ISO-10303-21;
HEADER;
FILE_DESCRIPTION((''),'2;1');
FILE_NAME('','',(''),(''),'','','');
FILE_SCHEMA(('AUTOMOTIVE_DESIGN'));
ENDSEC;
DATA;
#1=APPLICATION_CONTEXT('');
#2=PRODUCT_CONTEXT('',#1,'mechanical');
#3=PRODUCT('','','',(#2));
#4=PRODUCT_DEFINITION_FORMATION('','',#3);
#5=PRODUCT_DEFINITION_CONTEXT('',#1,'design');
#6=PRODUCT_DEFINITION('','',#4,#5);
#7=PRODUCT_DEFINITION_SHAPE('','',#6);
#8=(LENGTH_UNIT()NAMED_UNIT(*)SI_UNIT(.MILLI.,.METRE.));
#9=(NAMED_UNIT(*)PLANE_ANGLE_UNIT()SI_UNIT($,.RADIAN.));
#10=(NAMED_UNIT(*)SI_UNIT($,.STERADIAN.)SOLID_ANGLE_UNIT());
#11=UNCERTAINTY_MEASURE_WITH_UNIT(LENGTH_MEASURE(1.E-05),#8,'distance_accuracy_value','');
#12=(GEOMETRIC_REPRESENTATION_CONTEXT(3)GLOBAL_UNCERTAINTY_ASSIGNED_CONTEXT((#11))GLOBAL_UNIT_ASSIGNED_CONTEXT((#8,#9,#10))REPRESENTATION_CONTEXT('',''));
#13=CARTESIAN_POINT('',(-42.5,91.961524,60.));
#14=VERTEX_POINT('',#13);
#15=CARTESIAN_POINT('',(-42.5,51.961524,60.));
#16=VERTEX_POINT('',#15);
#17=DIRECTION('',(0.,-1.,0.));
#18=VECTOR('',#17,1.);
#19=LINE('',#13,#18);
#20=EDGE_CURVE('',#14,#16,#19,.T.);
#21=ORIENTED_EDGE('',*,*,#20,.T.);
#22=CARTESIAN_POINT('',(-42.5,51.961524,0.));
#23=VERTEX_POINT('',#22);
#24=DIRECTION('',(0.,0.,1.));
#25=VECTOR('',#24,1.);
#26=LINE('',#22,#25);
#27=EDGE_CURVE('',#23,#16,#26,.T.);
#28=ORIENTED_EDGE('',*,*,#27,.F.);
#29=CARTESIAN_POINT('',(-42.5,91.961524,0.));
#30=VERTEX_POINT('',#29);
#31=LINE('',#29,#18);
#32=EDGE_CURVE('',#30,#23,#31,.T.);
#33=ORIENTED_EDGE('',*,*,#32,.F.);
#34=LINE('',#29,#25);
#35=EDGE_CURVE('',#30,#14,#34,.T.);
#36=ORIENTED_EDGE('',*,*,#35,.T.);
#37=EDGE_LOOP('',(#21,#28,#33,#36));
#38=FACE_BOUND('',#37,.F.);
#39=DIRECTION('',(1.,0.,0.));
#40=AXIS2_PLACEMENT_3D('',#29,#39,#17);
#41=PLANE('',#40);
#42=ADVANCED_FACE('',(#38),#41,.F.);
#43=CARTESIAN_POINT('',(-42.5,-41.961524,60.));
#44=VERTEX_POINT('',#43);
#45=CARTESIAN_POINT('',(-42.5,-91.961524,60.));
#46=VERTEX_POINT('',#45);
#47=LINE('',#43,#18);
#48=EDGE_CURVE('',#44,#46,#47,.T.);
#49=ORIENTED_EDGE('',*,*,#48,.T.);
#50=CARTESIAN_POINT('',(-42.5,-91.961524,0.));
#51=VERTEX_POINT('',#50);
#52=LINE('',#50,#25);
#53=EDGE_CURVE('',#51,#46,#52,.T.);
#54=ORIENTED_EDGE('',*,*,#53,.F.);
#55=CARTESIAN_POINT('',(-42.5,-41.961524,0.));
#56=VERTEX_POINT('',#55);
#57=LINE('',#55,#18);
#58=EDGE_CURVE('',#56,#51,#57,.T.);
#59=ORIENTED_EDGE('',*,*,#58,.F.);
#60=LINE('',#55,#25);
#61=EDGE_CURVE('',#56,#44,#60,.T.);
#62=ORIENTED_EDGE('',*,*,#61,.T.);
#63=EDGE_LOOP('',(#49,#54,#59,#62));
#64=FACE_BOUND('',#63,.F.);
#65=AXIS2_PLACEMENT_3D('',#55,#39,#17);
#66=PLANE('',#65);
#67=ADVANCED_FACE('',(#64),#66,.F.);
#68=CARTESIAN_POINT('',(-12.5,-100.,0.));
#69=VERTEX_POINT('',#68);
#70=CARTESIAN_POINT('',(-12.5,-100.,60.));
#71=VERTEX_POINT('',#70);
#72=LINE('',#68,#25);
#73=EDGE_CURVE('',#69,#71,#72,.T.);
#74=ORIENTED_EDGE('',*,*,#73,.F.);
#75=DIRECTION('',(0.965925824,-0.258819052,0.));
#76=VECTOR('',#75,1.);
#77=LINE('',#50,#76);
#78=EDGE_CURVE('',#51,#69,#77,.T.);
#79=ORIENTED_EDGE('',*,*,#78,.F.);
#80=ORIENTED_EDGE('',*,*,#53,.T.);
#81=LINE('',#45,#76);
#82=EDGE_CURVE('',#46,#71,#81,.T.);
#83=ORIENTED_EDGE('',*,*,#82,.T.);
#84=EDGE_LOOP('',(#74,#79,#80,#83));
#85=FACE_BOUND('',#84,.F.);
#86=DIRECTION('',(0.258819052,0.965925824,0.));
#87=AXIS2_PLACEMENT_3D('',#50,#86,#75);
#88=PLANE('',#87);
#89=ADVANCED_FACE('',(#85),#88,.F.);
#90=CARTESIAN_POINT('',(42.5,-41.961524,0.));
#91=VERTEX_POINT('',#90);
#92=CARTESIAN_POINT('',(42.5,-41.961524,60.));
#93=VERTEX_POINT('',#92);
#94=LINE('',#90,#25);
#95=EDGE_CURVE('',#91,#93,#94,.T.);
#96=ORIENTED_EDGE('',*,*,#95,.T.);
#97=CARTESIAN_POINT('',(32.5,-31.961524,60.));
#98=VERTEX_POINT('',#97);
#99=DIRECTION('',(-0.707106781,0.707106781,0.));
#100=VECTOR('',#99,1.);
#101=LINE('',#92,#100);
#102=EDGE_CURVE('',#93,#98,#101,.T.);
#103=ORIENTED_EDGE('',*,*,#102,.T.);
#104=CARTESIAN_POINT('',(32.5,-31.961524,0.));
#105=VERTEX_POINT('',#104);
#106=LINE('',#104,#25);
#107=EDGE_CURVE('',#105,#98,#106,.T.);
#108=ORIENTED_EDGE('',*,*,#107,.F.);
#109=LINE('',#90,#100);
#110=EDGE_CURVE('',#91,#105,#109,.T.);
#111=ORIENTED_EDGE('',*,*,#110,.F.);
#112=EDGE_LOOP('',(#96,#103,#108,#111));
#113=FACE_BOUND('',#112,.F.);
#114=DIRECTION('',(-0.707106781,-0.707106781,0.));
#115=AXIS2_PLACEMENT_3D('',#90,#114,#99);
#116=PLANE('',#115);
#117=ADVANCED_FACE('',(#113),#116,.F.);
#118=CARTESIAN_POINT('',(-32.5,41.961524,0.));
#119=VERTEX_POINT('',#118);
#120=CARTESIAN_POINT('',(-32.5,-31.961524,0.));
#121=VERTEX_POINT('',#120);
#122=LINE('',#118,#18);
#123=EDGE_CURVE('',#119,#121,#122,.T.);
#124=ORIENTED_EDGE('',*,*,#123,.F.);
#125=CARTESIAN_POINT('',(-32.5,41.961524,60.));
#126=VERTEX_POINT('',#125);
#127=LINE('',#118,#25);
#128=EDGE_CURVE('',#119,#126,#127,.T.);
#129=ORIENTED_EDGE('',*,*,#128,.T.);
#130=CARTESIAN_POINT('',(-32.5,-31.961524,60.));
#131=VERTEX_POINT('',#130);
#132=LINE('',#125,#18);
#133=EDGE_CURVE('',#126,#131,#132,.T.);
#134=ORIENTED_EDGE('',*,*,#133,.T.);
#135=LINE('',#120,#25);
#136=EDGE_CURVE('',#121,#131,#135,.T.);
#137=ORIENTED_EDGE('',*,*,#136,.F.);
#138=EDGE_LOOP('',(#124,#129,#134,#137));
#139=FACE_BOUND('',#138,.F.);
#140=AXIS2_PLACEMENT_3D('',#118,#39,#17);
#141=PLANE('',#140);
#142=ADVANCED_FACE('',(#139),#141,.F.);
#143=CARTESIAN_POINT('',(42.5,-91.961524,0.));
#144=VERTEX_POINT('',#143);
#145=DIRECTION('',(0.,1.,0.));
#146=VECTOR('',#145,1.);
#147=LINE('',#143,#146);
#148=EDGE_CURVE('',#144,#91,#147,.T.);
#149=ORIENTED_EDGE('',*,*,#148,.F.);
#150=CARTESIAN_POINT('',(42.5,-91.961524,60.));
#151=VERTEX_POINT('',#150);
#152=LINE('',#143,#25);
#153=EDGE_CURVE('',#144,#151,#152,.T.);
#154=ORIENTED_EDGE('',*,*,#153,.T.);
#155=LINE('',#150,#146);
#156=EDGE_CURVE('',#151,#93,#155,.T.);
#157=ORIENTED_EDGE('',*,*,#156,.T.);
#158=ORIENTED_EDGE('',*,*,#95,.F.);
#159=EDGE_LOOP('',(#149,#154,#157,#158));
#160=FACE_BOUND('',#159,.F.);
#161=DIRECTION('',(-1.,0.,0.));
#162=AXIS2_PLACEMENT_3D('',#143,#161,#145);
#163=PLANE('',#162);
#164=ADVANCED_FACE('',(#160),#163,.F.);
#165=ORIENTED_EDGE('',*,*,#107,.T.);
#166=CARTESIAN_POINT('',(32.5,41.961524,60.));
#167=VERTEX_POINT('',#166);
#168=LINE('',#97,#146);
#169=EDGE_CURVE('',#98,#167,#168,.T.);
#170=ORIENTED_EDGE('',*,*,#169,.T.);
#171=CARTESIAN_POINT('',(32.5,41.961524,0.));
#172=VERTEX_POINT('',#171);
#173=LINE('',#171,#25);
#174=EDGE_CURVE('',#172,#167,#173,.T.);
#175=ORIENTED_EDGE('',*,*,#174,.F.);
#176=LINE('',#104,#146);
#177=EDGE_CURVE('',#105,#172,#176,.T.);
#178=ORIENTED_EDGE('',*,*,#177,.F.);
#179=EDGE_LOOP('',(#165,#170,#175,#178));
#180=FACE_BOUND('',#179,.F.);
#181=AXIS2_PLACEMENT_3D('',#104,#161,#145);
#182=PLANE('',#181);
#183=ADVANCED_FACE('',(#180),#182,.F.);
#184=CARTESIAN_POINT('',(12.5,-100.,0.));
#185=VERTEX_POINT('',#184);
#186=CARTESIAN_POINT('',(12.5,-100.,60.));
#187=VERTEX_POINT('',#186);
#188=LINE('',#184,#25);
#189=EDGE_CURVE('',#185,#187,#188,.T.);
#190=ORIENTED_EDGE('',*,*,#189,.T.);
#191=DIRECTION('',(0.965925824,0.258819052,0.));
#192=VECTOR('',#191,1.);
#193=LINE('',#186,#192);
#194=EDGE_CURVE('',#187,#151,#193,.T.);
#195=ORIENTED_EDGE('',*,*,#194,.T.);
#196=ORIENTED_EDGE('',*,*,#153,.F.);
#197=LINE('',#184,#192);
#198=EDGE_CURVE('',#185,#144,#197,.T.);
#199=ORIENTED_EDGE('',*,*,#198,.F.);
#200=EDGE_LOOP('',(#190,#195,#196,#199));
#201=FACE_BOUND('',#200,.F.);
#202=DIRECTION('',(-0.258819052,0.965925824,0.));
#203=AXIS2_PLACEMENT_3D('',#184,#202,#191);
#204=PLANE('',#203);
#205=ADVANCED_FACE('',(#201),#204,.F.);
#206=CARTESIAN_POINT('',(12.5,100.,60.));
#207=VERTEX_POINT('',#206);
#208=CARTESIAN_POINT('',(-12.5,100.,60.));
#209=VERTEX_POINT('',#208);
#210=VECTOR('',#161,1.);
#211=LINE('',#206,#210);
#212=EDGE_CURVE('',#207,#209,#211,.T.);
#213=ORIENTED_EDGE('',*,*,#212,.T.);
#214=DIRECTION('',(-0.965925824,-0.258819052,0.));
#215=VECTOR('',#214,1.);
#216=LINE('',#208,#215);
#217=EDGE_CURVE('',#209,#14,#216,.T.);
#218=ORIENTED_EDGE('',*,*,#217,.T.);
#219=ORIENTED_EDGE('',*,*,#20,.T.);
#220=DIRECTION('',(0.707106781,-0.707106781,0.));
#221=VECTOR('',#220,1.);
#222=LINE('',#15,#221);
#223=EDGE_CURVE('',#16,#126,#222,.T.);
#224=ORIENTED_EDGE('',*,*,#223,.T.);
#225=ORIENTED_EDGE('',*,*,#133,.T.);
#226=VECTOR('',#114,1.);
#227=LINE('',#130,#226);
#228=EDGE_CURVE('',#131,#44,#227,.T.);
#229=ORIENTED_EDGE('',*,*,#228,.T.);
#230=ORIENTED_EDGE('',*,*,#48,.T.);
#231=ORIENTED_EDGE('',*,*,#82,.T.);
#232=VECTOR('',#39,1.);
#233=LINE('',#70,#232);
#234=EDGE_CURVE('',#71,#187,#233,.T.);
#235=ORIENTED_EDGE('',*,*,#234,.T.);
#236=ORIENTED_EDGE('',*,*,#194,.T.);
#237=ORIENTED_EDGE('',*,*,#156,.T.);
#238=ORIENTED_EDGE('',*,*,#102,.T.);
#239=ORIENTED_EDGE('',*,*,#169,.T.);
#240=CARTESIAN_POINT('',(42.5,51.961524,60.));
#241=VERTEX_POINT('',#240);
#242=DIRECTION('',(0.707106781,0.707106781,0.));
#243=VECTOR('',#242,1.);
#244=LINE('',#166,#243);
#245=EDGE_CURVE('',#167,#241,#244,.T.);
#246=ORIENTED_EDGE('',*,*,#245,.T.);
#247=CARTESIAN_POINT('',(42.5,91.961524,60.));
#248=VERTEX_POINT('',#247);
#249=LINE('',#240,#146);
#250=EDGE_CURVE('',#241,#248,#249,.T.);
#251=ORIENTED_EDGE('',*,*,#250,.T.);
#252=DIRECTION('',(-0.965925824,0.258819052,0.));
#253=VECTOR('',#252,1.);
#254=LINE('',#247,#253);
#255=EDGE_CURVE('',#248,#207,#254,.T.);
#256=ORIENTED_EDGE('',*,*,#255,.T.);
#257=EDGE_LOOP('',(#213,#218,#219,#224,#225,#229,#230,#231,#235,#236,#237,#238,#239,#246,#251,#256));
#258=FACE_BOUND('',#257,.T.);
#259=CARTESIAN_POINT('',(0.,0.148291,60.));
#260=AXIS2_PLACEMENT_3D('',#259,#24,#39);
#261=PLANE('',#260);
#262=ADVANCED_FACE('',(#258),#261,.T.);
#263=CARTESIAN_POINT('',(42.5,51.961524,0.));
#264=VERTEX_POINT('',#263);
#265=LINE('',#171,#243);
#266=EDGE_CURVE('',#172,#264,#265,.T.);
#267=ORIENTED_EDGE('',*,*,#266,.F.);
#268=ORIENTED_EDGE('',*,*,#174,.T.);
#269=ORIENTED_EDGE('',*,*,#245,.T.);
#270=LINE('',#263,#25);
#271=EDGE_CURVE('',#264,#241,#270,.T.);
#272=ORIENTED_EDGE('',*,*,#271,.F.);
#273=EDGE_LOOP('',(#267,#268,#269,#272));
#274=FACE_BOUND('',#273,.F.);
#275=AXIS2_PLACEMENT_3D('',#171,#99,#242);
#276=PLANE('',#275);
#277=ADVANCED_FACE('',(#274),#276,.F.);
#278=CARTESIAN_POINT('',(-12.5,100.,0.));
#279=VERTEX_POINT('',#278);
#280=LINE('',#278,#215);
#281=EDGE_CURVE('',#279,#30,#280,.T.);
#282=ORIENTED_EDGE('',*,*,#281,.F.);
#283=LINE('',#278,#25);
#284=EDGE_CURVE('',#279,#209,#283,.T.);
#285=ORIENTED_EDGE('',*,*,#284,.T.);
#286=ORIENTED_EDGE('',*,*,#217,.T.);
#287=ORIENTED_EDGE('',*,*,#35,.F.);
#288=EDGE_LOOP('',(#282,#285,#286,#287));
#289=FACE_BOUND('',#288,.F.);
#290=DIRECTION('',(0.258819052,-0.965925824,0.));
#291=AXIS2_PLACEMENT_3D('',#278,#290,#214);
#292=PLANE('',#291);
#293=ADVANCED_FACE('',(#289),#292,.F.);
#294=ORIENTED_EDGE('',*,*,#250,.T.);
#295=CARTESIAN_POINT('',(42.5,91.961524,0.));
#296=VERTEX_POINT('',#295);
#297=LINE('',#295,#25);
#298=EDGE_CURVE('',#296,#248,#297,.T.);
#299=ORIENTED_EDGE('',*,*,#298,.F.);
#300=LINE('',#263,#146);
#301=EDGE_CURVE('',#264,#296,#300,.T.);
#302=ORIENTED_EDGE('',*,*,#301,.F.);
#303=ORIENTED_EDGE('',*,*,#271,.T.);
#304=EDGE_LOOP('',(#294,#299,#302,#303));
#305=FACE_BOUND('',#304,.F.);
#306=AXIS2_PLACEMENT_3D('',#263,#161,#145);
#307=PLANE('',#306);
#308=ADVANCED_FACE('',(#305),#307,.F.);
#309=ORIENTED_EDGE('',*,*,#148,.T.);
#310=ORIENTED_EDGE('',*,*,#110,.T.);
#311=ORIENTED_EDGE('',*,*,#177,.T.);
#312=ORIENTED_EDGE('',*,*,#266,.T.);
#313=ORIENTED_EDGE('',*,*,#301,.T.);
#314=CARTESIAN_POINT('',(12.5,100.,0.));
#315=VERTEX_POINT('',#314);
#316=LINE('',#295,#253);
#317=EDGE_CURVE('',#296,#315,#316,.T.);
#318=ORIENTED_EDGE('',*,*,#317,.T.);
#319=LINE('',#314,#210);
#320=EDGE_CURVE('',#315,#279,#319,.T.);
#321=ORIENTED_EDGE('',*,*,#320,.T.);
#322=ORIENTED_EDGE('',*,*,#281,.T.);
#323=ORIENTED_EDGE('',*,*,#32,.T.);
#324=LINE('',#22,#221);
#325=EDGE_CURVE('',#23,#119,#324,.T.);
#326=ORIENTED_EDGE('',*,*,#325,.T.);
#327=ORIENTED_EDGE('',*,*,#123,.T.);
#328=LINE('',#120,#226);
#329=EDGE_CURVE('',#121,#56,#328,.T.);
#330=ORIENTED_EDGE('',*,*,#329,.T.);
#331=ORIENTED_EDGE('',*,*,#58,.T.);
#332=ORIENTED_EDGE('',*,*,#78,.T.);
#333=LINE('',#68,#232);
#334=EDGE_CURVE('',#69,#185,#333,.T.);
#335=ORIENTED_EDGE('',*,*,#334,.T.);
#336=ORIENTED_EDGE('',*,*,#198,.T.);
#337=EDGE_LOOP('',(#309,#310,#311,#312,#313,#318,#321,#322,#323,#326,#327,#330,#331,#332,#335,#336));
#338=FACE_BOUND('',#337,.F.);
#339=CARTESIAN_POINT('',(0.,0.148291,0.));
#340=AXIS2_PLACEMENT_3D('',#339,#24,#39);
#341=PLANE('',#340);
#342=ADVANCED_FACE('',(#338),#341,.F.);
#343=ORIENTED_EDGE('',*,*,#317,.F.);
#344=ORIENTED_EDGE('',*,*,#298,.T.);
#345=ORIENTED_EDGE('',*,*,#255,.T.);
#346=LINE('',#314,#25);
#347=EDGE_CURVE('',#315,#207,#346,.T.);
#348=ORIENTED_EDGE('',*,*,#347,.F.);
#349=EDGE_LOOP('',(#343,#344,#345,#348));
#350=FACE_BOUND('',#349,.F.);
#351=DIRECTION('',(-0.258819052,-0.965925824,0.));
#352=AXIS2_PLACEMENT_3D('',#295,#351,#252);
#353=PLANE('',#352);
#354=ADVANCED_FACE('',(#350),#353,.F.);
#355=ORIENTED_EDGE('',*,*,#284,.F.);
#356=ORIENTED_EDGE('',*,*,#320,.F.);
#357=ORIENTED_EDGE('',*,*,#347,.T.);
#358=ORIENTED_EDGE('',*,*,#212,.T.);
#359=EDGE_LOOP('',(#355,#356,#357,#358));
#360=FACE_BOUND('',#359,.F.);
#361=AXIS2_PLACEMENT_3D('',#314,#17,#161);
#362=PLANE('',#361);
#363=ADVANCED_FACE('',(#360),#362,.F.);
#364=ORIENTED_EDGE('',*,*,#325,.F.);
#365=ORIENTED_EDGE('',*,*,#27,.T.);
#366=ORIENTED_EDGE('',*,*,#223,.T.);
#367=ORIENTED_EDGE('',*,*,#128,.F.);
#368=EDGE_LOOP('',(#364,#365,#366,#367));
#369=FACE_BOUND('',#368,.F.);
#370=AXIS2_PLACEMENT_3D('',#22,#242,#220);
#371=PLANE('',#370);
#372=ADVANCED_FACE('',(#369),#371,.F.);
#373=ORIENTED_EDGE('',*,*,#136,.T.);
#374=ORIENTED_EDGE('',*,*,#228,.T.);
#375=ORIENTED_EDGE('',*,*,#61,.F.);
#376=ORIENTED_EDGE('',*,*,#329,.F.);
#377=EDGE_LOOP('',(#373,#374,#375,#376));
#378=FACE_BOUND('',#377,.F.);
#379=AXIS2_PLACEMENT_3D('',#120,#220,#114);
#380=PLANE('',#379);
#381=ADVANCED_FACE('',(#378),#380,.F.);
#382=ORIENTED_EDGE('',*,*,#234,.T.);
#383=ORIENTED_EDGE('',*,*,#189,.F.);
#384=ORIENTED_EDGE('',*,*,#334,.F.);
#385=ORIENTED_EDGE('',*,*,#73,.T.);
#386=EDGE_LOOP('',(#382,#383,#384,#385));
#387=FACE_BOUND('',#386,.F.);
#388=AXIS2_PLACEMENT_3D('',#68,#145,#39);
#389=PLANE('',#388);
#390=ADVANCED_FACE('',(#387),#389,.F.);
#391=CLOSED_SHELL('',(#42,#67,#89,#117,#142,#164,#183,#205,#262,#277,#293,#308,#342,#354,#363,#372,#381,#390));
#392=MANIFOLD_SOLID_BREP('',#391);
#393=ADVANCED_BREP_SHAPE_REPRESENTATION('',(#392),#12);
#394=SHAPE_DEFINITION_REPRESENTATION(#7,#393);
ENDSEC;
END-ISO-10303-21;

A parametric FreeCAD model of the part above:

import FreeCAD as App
import Part
import Sketcher

V = App.Vector
Q = App.Units.Quantity


def add_polygon(sketch, points):
    """Adds a closed chain of lines whose ends are joined by coincident constraints."""
    first, n = sketch.GeometryCount, len(points)
    for a, b in zip(points, points[1:] + points[:1]):
        sketch.addGeometry(Part.LineSegment(App.Vector(*a, 0), App.Vector(*b, 0)), False)
    for i in range(n):
        sketch.addConstraint(Sketcher.Constraint("Coincident", first + i, 2, first + (i + 1) % n, 1))

doc = App.newDocument("Part")
body = doc.addObject("PartDesign::Body", "Body")

sketch1 = body.newObject("Sketcher::SketchObject", "Sketch")
sketch1.AttachmentSupport = (doc.getObject("XY_Plane"), [""])
sketch1.MapMode = "FlatFace"
add_polygon(sketch1, [(-12.5, -100), (12.5, -100), (42.5, -91.961524), (42.5, -41.961524), (32.5, -31.961524), (32.5, 41.961524), (42.5, 51.961524), (42.5, 91.961524), (12.5, 100), (-12.5, 100), (-42.5, 91.961524), (-42.5, 51.961524), (-32.5, 41.961524), (-32.5, -31.961524), (-42.5, -41.961524), (-42.5, -91.961524)])
sketch1.addConstraint([
    Sketcher.Constraint("Horizontal", 0),
    Sketcher.Constraint("Vertical", 2),
    Sketcher.Constraint("Vertical", 4),
    Sketcher.Constraint("Vertical", 6),
    Sketcher.Constraint("Horizontal", 8),
    Sketcher.Constraint("Vertical", 10),
    Sketcher.Constraint("Vertical", 12),
    Sketcher.Constraint("Vertical", 14),
    Sketcher.Constraint("Symmetric", 0, 2, 8, 2, -1, 1),
    Sketcher.Constraint("Symmetric", 1, 2, 9, 2, -1, 1),
    Sketcher.Constraint("Symmetric", 6, 2, 14, 2, -1, 1),
    Sketcher.Constraint("Symmetric", 6, 2, 9, 2, -2),
    Sketcher.Constraint("Symmetric", 4, 2, 11, 2, -2),
    Sketcher.Constraint("Perpendicular", 3, 5),
    Sketcher.Constraint("Perpendicular", 5, 11),
    Sketcher.Constraint("Perpendicular", 11, 13),
    Sketcher.Constraint("Parallel", 7, 15),
    Sketcher.Constraint("Horizontal", 5, 2, 10, 2),
    Sketcher.Constraint("Horizontal", 3, 2, 12, 2),
    Sketcher.Constraint("Vertical", 0, 2, 7, 2),
    Sketcher.Constraint("DistanceX", 0, 1, 0, 2, 25.0),
    Sketcher.Constraint("DistanceY", 2, 1, 2, 2, 50.0),
    Sketcher.Constraint("DistanceY", 6, 1, 6, 2, 40.0),
    Sketcher.Constraint("Angle", 1, Q("15 deg")),
    Sketcher.Constraint("DistanceY", 0, 2, -1, 1, 100.0),
    Sketcher.Constraint("DistanceX", 0, 2, 1, 2, 30.0),
    Sketcher.Constraint("DistanceX", 3, 2, 2, 2, 10.0),
])
pad1 = body.newObject("PartDesign::Pad", "Pad")
pad1.Profile = sketch1
pad1.Length = 60

doc.recompute()
